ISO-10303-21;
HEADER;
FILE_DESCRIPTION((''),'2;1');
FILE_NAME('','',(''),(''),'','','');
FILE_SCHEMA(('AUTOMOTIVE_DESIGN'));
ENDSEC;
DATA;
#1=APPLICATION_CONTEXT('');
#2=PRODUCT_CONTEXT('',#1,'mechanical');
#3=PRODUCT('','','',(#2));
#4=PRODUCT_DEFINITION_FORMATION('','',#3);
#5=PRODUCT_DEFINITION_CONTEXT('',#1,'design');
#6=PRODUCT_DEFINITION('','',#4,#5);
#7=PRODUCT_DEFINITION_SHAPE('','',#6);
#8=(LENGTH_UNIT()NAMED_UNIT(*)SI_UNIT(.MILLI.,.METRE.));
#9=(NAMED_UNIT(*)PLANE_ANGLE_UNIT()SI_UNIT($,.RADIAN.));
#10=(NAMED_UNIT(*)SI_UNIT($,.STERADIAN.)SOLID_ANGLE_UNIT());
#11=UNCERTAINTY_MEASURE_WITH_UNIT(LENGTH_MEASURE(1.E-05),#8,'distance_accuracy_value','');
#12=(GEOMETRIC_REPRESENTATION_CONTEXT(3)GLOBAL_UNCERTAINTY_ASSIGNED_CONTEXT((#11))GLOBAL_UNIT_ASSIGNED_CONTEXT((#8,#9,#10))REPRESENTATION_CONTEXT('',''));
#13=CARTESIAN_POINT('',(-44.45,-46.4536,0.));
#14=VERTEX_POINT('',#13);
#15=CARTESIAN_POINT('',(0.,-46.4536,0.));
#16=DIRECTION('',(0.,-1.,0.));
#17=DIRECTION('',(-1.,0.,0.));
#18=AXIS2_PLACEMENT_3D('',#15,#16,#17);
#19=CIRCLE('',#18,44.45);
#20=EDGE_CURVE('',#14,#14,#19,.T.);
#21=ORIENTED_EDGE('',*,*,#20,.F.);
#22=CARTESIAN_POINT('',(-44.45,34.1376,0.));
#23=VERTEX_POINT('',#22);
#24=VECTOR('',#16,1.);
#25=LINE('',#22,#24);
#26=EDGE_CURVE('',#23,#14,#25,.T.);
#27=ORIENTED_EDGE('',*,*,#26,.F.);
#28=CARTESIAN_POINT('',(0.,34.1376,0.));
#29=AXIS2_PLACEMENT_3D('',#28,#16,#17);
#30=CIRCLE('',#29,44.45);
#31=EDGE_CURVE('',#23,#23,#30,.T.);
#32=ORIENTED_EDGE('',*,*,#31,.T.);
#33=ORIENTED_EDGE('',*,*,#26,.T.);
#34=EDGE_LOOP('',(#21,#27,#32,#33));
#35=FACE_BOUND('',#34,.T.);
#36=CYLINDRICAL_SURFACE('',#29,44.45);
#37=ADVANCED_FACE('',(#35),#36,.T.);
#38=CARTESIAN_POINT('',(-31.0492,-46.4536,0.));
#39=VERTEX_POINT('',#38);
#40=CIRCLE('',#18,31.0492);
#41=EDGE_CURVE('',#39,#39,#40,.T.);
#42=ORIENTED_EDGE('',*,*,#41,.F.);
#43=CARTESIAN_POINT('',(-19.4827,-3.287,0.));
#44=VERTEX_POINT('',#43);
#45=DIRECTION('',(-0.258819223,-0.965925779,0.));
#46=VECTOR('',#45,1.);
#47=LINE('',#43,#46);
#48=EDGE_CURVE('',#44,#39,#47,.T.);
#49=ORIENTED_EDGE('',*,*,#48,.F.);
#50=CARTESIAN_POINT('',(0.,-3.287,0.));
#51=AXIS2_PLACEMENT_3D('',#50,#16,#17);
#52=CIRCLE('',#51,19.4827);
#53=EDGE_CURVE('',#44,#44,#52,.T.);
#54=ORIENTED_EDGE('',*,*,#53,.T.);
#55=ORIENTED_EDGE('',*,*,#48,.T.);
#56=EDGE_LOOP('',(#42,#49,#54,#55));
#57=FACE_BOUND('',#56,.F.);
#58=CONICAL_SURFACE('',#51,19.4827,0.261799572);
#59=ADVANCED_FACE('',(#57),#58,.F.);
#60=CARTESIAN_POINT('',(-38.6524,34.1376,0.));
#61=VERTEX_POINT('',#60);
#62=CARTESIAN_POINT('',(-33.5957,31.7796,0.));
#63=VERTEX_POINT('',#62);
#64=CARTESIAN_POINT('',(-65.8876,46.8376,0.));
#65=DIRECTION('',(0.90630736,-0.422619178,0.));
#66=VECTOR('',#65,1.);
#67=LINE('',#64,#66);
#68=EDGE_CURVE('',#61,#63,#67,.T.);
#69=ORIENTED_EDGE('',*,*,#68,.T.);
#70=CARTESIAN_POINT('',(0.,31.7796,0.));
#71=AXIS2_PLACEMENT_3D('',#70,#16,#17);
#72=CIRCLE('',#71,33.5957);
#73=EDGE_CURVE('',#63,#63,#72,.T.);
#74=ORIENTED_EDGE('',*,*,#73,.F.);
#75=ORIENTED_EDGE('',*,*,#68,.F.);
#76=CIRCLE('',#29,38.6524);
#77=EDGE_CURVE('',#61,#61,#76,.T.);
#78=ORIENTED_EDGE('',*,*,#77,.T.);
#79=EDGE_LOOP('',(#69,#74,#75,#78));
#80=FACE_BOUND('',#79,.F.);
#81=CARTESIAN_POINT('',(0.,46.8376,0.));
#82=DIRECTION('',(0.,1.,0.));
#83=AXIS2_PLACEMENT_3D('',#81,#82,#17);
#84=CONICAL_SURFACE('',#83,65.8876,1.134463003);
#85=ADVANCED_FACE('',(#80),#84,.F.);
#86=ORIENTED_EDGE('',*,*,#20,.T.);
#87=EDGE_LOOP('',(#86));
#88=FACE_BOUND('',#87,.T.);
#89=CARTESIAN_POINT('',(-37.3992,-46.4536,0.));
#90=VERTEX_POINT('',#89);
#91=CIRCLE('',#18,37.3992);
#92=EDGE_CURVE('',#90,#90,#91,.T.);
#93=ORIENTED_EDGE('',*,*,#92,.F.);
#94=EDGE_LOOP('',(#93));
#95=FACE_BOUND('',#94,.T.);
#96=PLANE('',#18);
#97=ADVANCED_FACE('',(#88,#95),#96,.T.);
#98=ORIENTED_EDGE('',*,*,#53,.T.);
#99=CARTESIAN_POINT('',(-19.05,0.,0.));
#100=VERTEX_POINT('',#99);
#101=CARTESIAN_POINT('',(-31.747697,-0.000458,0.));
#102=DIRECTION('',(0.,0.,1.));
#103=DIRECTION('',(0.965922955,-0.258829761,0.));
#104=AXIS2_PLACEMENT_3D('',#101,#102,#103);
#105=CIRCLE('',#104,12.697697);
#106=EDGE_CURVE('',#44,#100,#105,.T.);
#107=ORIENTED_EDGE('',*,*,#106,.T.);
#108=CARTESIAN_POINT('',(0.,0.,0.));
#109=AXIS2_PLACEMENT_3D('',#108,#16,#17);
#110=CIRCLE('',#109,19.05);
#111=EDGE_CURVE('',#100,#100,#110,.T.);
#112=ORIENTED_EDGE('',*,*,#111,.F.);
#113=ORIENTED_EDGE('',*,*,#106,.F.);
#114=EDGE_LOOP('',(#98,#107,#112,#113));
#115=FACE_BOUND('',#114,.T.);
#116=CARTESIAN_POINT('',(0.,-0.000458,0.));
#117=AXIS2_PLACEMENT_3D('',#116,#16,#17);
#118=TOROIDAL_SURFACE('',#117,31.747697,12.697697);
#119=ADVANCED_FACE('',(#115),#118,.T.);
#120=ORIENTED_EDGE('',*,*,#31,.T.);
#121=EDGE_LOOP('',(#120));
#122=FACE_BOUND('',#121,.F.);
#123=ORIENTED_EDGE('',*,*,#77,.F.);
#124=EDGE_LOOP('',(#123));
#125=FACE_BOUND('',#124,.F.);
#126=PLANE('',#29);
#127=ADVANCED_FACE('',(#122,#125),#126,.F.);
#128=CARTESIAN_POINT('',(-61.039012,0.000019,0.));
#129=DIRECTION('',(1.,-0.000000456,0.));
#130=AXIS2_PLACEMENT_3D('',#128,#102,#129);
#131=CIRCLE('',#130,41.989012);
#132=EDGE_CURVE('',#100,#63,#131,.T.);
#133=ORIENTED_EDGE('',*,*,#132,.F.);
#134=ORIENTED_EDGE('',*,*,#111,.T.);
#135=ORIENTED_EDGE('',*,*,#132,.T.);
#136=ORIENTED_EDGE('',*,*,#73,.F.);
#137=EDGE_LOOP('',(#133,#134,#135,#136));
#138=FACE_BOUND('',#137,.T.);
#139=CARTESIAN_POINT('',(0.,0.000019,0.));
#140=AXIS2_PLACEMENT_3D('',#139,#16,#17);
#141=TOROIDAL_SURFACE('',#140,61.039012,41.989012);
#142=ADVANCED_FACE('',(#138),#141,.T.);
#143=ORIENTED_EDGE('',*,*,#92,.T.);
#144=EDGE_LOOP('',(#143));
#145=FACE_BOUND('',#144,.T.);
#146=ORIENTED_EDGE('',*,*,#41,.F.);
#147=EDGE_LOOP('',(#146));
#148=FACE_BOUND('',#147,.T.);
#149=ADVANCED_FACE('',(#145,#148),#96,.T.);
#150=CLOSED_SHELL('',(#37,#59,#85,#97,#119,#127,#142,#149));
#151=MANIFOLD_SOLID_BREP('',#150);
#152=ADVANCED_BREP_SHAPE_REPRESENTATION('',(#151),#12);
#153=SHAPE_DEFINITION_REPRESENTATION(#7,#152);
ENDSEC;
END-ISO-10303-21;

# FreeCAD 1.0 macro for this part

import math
import FreeCAD as App
import Part
import Sketcher

V = App.Vector
Q = App.Units.Quantity

doc = App.newDocument("Part")
body = doc.addObject("PartDesign::Body", "Body")

# Sketch on XY plane
sketch1 = body.newObject("Sketcher::SketchObject", "Sketch")
sketch1.AttachmentSupport = (doc.getObject("XY_Plane"), [""])
sketch1.MapMode = "FlatFace"
sketch1.addGeometry([
    Part.LineSegment(V(-31.049167, -46.453609, 0), V(-19.4827, -3.287, 0)),  # 0
    Part.ArcOfCircle(Part.Circle(V(-31.747697, -0.000458, 0), V(0, 0, 1), 12.697697), math.radians(-15.000636), math.radians(0.002067)),  # 1
    Part.ArcOfCircle(Part.Circle(V(-61.0391, 0, 0), V(0, 0, 1), 41.9891), math.radians(0), math.radians(49.18762)),  # 2
    Part.LineSegment(V(-33.5957, 31.7796, 0), V(-38.652406, 34.137587, 0)),  # 3
    Part.LineSegment(V(-38.6524, 34.1376, 0), V(-44.45, 34.1376, 0)),  # 4
    Part.LineSegment(V(-44.45, 34.1376, 0), V(-44.45, -46.4536, 0)),  # 5
    Part.LineSegment(V(-44.45, -46.4536, 0), V(-31.0492, -46.4536, 0)),  # 6
], False)
sketch1.addConstraint([
    Sketcher.Constraint("Coincident", 0, 2, 1, 1),
    Sketcher.Constraint("Coincident", 1, 2, 2, 1),
    Sketcher.Constraint("Coincident", 2, 2, 3, 1),
    Sketcher.Constraint("Coincident", 3, 2, 4, 1),
    Sketcher.Constraint("Coincident", 4, 2, 5, 1),
    Sketcher.Constraint("Coincident", 5, 2, 6, 1),
    Sketcher.Constraint("Coincident", 6, 2, 0, 1),
    Sketcher.Constraint("Horizontal", 4),
    Sketcher.Constraint("Vertical", 5),
    Sketcher.Constraint("Horizontal", 6),
    Sketcher.Constraint("PointOnObject", 2, 3, -1),
    Sketcher.Constraint("PointOnObject", 1, 2, -1),
    Sketcher.Constraint("Radius", 2, Q("41.989 mm")),
    Sketcher.Constraint("DistanceX", 4, 2, 1, 2, Q("25.4 mm")),
    Sketcher.Constraint("DistanceX", 1, 2, -1, 1, Q("19.05 mm")),
    Sketcher.Constraint("DistanceY", 5, 2, 5, 1, Q("80.5912 mm")),
    Sketcher.Constraint("Radius", 1, Q("12.6977 mm")),
    Sketcher.Constraint("DistanceY", 1, 3, 2, 2, Q("31.78 mm")),
    Sketcher.Constraint("DistanceX", 2, 3, 6, 2, Q("29.99 mm")),
    Sketcher.Constraint("DistanceX", 4, 2, 4, 1, Q("5.7976 mm")),
    Sketcher.Constraint("DistanceY", 0, 2, -1, 1, Q("3.287 mm")),
    Sketcher.Constraint("DistanceX", 1, 3, 0, 2, Q("12.265 mm")),
    Sketcher.Constraint("DistanceY", 2, 2, 3, 2, Q("2.358 mm")),
])
revolution = body.newObject("PartDesign::Revolution", "Revolution")
revolution.Profile = sketch1
revolution.ReferenceAxis = (sketch1, ["V_Axis"])
revolution.Angle = 360

doc.recompute()
